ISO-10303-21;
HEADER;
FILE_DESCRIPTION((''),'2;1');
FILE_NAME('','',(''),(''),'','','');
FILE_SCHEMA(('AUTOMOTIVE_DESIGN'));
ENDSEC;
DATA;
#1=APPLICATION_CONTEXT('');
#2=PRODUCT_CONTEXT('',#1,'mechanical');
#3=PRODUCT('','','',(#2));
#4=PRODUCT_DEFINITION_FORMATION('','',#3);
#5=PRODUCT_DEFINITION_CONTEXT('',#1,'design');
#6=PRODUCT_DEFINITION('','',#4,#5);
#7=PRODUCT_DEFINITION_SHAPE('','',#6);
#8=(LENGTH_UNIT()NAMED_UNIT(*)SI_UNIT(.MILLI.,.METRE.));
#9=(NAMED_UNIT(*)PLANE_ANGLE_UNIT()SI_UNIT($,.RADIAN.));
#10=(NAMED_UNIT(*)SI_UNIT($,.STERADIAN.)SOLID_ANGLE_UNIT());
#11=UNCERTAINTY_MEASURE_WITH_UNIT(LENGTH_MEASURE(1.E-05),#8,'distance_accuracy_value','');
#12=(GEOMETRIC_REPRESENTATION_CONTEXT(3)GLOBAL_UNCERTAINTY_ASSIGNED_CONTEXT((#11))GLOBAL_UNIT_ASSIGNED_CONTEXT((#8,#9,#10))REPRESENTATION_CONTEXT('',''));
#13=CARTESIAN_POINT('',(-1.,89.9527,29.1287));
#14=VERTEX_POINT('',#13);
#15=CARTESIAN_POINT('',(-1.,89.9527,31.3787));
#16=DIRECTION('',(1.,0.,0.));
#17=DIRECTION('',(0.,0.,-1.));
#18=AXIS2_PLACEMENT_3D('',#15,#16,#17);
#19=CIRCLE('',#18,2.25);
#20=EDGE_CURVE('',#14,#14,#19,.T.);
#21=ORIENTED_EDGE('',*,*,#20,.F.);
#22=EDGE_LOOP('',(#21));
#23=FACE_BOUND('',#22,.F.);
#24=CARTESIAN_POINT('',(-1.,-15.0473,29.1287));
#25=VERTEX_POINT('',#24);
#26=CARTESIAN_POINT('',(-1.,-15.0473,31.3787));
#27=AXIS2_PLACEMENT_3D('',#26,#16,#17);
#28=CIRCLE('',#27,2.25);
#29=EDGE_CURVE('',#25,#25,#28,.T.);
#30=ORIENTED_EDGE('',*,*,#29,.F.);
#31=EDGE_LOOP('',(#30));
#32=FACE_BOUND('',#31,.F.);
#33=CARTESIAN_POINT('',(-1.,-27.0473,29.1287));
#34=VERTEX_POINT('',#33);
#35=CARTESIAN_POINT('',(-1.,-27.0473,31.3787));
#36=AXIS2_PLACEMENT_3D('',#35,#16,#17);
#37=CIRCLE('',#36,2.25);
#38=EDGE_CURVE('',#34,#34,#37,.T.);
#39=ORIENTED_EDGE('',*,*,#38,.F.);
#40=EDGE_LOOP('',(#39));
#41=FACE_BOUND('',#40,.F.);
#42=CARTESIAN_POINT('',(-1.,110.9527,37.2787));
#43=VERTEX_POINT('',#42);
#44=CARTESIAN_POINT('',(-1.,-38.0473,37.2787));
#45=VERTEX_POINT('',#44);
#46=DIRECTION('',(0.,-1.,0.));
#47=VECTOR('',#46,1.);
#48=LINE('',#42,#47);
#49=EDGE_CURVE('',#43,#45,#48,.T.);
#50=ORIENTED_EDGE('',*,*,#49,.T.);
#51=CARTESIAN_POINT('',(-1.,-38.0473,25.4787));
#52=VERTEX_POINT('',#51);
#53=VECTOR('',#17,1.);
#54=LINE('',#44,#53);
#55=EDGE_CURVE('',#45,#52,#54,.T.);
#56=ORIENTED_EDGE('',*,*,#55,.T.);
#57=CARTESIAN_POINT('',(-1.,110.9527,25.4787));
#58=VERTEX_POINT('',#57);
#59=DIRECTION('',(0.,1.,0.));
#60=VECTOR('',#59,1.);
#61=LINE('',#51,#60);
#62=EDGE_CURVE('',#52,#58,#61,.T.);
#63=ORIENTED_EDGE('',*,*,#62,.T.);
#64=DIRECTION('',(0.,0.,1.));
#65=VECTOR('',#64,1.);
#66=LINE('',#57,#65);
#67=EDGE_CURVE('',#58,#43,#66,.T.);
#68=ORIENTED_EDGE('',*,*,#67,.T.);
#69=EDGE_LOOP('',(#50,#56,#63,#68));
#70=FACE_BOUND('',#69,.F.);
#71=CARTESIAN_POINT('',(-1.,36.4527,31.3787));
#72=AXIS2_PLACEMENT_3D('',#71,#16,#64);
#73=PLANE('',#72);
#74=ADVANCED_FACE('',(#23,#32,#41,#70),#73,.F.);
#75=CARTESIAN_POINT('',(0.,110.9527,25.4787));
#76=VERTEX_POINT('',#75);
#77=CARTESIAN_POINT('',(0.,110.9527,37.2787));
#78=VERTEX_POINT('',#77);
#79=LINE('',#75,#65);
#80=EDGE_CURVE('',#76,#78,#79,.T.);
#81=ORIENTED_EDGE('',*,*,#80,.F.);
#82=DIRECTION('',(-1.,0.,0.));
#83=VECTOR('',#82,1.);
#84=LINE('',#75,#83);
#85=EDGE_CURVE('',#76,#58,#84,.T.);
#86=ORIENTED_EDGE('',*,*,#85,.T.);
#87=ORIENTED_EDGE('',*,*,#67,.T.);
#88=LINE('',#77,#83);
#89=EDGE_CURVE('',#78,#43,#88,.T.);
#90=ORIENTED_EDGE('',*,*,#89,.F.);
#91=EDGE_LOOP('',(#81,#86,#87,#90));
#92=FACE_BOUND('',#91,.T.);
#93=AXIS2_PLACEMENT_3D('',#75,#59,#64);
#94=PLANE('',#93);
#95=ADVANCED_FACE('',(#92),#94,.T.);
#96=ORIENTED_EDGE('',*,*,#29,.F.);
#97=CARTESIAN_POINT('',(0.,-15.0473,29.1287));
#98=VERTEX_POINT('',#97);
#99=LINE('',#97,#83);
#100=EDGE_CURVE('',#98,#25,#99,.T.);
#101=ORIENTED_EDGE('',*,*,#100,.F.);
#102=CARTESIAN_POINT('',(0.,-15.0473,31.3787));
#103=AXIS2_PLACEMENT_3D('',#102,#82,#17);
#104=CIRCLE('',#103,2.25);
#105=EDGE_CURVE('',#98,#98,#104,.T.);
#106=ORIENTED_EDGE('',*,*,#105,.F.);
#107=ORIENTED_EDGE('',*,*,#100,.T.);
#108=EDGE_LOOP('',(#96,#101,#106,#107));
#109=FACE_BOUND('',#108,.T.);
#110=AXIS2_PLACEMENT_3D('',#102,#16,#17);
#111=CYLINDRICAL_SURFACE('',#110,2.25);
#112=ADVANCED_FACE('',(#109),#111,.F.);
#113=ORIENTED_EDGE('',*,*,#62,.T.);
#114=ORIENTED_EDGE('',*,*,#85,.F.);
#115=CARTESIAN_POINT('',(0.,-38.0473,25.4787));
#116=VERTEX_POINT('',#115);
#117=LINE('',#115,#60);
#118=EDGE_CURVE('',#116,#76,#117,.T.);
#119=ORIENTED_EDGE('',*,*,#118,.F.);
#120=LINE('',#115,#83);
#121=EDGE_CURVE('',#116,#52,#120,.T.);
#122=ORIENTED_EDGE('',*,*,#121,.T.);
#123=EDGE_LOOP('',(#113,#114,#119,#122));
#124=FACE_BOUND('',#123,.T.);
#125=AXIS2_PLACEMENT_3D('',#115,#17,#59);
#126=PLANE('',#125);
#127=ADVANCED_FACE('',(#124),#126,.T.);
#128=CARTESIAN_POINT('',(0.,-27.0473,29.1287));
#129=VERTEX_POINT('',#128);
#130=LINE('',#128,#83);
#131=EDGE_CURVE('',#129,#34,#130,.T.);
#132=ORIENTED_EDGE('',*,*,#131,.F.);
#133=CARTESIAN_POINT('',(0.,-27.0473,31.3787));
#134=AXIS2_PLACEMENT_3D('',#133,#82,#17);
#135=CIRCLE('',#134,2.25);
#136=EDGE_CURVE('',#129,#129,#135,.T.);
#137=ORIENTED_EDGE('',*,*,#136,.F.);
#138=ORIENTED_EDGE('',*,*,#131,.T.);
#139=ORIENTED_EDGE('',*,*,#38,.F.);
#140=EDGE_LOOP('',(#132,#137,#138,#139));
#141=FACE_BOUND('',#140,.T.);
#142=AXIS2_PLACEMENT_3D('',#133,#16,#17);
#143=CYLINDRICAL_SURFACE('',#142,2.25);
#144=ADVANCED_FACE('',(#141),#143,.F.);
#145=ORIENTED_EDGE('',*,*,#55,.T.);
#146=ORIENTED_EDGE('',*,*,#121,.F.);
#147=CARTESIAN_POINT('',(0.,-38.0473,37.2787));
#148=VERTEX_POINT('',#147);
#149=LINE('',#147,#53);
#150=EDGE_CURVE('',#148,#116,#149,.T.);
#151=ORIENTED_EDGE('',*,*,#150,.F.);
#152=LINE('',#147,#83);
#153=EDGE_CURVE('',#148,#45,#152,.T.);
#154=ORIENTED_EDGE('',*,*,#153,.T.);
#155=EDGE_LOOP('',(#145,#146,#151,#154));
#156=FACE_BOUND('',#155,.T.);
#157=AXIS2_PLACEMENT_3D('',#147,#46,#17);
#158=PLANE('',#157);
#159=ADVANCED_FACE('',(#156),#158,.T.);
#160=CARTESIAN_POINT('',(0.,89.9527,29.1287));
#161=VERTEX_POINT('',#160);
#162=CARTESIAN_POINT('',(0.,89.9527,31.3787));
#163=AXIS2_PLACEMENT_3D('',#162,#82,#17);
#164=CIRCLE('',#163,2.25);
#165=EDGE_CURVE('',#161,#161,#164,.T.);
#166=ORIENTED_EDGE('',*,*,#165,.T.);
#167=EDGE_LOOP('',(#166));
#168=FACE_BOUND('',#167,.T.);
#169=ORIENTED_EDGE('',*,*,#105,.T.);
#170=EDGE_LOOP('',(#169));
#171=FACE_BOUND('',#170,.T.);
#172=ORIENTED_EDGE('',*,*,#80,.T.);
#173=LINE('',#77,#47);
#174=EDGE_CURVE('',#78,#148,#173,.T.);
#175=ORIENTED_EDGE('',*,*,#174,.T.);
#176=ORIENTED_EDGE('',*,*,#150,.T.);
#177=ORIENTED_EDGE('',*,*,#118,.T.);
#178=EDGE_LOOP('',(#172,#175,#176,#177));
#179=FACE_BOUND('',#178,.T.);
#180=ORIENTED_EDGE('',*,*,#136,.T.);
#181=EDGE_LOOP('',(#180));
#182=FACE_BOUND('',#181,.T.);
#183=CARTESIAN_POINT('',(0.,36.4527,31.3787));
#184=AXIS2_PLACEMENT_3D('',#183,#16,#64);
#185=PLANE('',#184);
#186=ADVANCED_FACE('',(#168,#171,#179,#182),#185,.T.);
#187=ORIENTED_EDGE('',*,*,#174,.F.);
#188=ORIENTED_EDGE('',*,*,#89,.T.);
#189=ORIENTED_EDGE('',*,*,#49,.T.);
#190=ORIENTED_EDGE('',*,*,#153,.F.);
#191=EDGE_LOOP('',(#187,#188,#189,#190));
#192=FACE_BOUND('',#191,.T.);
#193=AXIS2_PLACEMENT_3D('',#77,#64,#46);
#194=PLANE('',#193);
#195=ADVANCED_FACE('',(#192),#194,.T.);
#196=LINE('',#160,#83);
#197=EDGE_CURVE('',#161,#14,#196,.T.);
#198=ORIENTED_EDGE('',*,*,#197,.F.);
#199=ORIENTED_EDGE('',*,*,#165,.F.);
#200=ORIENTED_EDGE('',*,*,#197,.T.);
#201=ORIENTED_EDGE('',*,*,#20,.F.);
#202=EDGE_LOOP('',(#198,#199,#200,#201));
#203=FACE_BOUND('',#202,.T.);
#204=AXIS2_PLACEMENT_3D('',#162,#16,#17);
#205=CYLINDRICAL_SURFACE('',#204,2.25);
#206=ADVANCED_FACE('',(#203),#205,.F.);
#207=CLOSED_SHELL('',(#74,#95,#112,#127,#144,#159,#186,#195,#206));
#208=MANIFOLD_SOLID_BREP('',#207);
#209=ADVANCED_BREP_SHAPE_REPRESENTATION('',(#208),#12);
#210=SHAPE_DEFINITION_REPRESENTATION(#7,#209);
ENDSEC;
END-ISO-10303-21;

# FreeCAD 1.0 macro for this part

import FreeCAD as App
import Part
import Sketcher


def add_polygon(sketch, points):
    """Adds a closed chain of lines whose ends are joined by coincident constraints."""
    first, n = sketch.GeometryCount, len(points)
    for a, b in zip(points, points[1:] + points[:1]):
        sketch.addGeometry(Part.LineSegment(App.Vector(*a, 0), App.Vector(*b, 0)), False)
    for i in range(n):
        sketch.addConstraint(Sketcher.Constraint("Coincident", first + i, 2, first + (i + 1) % n, 1))

doc = App.newDocument("Part")
params = doc.addObject("Spreadsheet::Sheet", "Params")
for row, (alias, value) in enumerate([
    ("sketch1_width", "149 mm"),
    ("sketch1_height", "11.8 mm"),
    ("pad1_length", "1 mm"),
    ("sketch2_diameter", "4.5 mm"),
    ("hole_diameter", "4.5 mm"),
    ("sketch3_diameter", "4.5 mm"),
    ("hole2_diameter", "4.5 mm"),
    ("sketch4_diameter", "4.5 mm"),
    ("hole3_diameter", "4.5 mm"),
], start=1):
    params.set(f"A{row}", alias)
    params.set(f"B{row}", "=" + value)
    params.setAlias(f"B{row}", alias)

body = doc.addObject("PartDesign::Body", "Body")

# Sketch on YZ plane
sketch1 = body.newObject("Sketcher::SketchObject", "Sketch")
sketch1.AttachmentSupport = (doc.getObject("YZ_Plane"), [""])
sketch1.MapMode = "FlatFace"
add_polygon(sketch1, [(111, 37), (-38, 37), (-38, 25), (111, 25)])  # lines 0-3
sketch1.addConstraint(Sketcher.Constraint("Horizontal", 0))
sketch1.addConstraint(Sketcher.Constraint("Vertical", 1))
sketch1.addConstraint(Sketcher.Constraint("Horizontal", 2))
sketch1.addConstraint(Sketcher.Constraint("Vertical", 3))
sketch1.addConstraint(Sketcher.Constraint("DistanceX", 0, 2, 0, 1, 149.0))
sketch1.addConstraint(Sketcher.Constraint("DistanceY", 1, 2, 1, 1, 11.8))
sketch1.addConstraint(Sketcher.Constraint("DistanceX", 0, 2, -1, 1, 38.0473))
sketch1.addConstraint(Sketcher.Constraint("DistanceY", -1, 1, 0, 2, 37.2787))
sketch1.setExpression("Constraints[8]", "Params.sketch1_width")
sketch1.setExpression("Constraints[9]", "Params.sketch1_height")
pad1 = body.newObject("PartDesign::Pad", "Pad")
pad1.Profile = sketch1
pad1.setExpression("Length", "Params.pad1_length")
pad1.Reversed = True

# Sketch on YZ plane
sketch2 = body.newObject("Sketcher::SketchObject", "Sketch001")
sketch2.AttachmentSupport = (doc.getObject("YZ_Plane"), [""])
sketch2.MapMode = "FlatFace"
sketch2.addGeometry(Part.Circle(App.Vector(-15, 31.4, 0), App.Vector(0, 0, 1), 2.2), False)
sketch2.addConstraint(Sketcher.Constraint("Diameter", 0, 4.5))
sketch2.addConstraint(Sketcher.Constraint("DistanceX", 0, 3, -1, 1, 15.0473))
sketch2.addConstraint(Sketcher.Constraint("DistanceY", -1, 1, 0, 3, 31.3787))
sketch2.setExpression("Constraints[0]", "Params.sketch2_diameter")
doc.recompute()
hole = body.newObject("PartDesign::Hole", "Hole")
hole.Profile = sketch2
hole.ThreadType = "None"
hole.setExpression("Diameter", "Params.hole_diameter")
hole.DepthType = "ThroughAll"

# Sketch on YZ plane
sketch3 = body.newObject("Sketcher::SketchObject", "Sketch002")
sketch3.AttachmentSupport = (doc.getObject("YZ_Plane"), [""])
sketch3.MapMode = "FlatFace"
sketch3.addGeometry(Part.Circle(App.Vector(90, 31.4, 0), App.Vector(0, 0, 1), 2.2), False)
sketch3.addConstraint(Sketcher.Constraint("Diameter", 0, 4.5))
sketch3.addConstraint(Sketcher.Constraint("DistanceX", -1, 1, 0, 3, 89.9527))
sketch3.addConstraint(Sketcher.Constraint("DistanceY", -1, 1, 0, 3, 31.3787))
sketch3.setExpression("Constraints[0]", "Params.sketch3_diameter")
doc.recompute()
hole2 = body.newObject("PartDesign::Hole", "Hole001")
hole2.Profile = sketch3
hole2.ThreadType = "None"
hole2.setExpression("Diameter", "Params.hole2_diameter")
hole2.DepthType = "ThroughAll"

# Sketch on YZ plane
sketch4 = body.newObject("Sketcher::SketchObject", "Sketch003")
sketch4.AttachmentSupport = (doc.getObject("YZ_Plane"), [""])
sketch4.MapMode = "FlatFace"
sketch4.addGeometry(Part.Circle(App.Vector(-27, 31.4, 0), App.Vector(0, 0, 1), 2.2), False)
sketch4.addConstraint(Sketcher.Constraint("Diameter", 0, 4.5))
sketch4.addConstraint(Sketcher.Constraint("DistanceX", 0, 3, -1, 1, 27.0473))
sketch4.addConstraint(Sketcher.Constraint("DistanceY", -1, 1, 0, 3, 31.3787))
sketch4.setExpression("Constraints[0]", "Params.sketch4_diameter")
doc.recompute()
hole3 = body.newObject("PartDesign::Hole", "Hole002")
hole3.Profile = sketch4
hole3.ThreadType = "None"
hole3.setExpression("Diameter", "Params.hole3_diameter")
hole3.DepthType = "ThroughAll"

doc.recompute()
